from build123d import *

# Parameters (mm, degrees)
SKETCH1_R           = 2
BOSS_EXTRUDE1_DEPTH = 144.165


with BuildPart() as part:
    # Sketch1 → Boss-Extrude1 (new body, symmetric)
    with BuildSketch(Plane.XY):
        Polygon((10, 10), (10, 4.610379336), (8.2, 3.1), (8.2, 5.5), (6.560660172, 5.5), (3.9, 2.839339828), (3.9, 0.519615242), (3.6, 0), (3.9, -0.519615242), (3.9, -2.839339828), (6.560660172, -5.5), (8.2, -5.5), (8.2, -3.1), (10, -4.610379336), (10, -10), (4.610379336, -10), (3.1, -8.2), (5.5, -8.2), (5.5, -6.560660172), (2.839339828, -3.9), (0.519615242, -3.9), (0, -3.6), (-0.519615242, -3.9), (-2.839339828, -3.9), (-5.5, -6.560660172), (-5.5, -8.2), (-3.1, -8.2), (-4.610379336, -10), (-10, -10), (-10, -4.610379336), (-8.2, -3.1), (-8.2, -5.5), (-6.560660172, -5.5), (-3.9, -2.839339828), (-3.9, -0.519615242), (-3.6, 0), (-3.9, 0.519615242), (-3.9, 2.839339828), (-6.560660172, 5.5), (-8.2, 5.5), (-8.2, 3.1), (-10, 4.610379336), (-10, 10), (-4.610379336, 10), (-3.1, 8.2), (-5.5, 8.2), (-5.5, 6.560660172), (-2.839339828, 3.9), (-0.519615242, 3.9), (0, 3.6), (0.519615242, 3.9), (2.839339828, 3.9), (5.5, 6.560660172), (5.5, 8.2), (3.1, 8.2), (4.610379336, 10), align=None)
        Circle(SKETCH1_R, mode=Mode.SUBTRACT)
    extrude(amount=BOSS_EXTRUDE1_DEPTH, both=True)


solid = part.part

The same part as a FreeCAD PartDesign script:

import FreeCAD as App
import Part
import Sketcher

V = App.Vector
Q = App.Units.Quantity

doc = App.newDocument("Part")
body = doc.addObject("PartDesign::Body", "Body")

# Sketch on XY plane
sketch1 = doc.addObject("Sketcher::SketchObject", "Sketch")
body.addObject(sketch1)
sketch1.AttachmentSupport = (doc.XY_Plane, [""])
sketch1.MapMode = "FlatFace"
sketch1.addGeometry([
    Part.LineSegment(V(10, 4.610379, 0), V(10, 10, 0)),  # 0
    Part.LineSegment(V(10, 10, 0), V(4.610379, 10, 0)),  # 1
    Part.LineSegment(V(4.610379, 10, 0), V(3.1, 8.2, 0)),  # 2
    Part.LineSegment(V(3.1, 8.2, 0), V(5.5, 8.2, 0)),  # 3
    Part.LineSegment(V(5.5, 8.2, 0), V(5.5, 6.56066, 0)),  # 4
    Part.LineSegment(V(5.5, 6.56066, 0), V(2.83934, 3.9, 0)),  # 5
    Part.LineSegment(V(2.83934, 3.9, 0), V(0.519615, 3.9, 0)),  # 6
    Part.LineSegment(V(0.519615, 3.9, 0), V(0, 3.6, 0)),  # 7
    Part.LineSegment(V(0, 3.6, 0), V(-0.519615, 3.9, 0)),  # 8
    Part.LineSegment(V(-0.519615, 3.9, 0), V(-2.83934, 3.9, 0)),  # 9
    Part.LineSegment(V(-2.83934, 3.9, 0), V(-5.5, 6.56066, 0)),  # 10
    Part.LineSegment(V(-5.5, 6.56066, 0), V(-5.5, 8.2, 0)),  # 11
    Part.LineSegment(V(-5.5, 8.2, 0), V(-3.1, 8.2, 0)),  # 12
    Part.LineSegment(V(-3.1, 8.2, 0), V(-4.610379, 10, 0)),  # 13
    Part.LineSegment(V(-4.610379, 10, 0), V(-10, 10, 0)),  # 14
    Part.LineSegment(V(-10, 10, 0), V(-10, 4.610379, 0)),  # 15
    Part.LineSegment(V(-10, 4.610379, 0), V(-8.2, 3.1, 0)),  # 16
    Part.LineSegment(V(-8.2, 3.1, 0), V(-8.2, 5.5, 0)),  # 17
    Part.LineSegment(V(-8.2, 5.5, 0), V(-6.56066, 5.5, 0)),  # 18
    Part.LineSegment(V(-6.56066, 5.5, 0), V(-3.9, 2.83934, 0)),  # 19
    Part.LineSegment(V(-3.9, 2.83934, 0), V(-3.9, 0.519615, 0)),  # 20
    Part.LineSegment(V(-3.9, 0.519615, 0), V(-3.6, 0, 0)),  # 21
    Part.LineSegment(V(-3.6, 0, 0), V(-3.9, -0.519615, 0)),  # 22
    Part.LineSegment(V(-3.9, -0.519615, 0), V(-3.9, -2.83934, 0)),  # 23
    Part.LineSegment(V(-3.9, -2.83934, 0), V(-6.56066, -5.5, 0)),  # 24
    Part.LineSegment(V(-6.56066, -5.5, 0), V(-8.2, -5.5, 0)),  # 25
    Part.LineSegment(V(-8.2, -5.5, 0), V(-8.2, -3.1, 0)),  # 26
    Part.LineSegment(V(-8.2, -3.1, 0), V(-10, -4.610379, 0)),  # 27
    Part.LineSegment(V(-10, -4.610379, 0), V(-10, -10, 0)),  # 28
    Part.LineSegment(V(-10, -10, 0), V(-4.610379, -10, 0)),  # 29
    Part.LineSegment(V(-4.610379, -10, 0), V(-3.1, -8.2, 0)),  # 30
    Part.LineSegment(V(-3.1, -8.2, 0), V(-5.5, -8.2, 0)),  # 31
    Part.LineSegment(V(-5.5, -8.2, 0), V(-5.5, -6.56066, 0)),  # 32
    Part.LineSegment(V(-5.5, -6.56066, 0), V(-2.83934, -3.9, 0)),  # 33
    Part.LineSegment(V(-2.83934, -3.9, 0), V(-0.519615, -3.9, 0)),  # 34
    Part.LineSegment(V(-0.519615, -3.9, 0), V(0, -3.6, 0)),  # 35
    Part.LineSegment(V(0, -3.6, 0), V(0.519615, -3.9, 0)),  # 36
    Part.LineSegment(V(0.519615, -3.9, 0), V(2.83934, -3.9, 0)),  # 37
    Part.LineSegment(V(2.83934, -3.9, 0), V(5.5, -6.56066, 0)),  # 38
    Part.LineSegment(V(5.5, -6.56066, 0), V(5.5, -8.2, 0)),  # 39
    Part.LineSegment(V(5.5, -8.2, 0), V(3.1, -8.2, 0)),  # 40
    Part.LineSegment(V(3.1, -8.2, 0), V(4.610379, -10, 0)),  # 41
    Part.LineSegment(V(4.610379, -10, 0), V(10, -10, 0)),  # 42
    Part.LineSegment(V(10, -10, 0), V(10, -4.610379, 0)),  # 43
    Part.LineSegment(V(10, -4.610379, 0), V(8.2, -3.1, 0)),  # 44
    Part.LineSegment(V(8.2, -3.1, 0), V(8.2, -5.5, 0)),  # 45
    Part.LineSegment(V(8.2, -5.5, 0), V(6.56066, -5.5, 0)),  # 46
    Part.LineSegment(V(6.56066, -5.5, 0), V(3.9, -2.83934, 0)),  # 47
    Part.LineSegment(V(3.9, -2.83934, 0), V(3.9, -0.519615, 0)),  # 48
    Part.LineSegment(V(3.9, -0.519615, 0), V(3.6, 0, 0)),  # 49
    Part.LineSegment(V(3.6, 0, 0), V(3.9, 0.519615, 0)),  # 50
    Part.LineSegment(V(3.9, 0.519615, 0), V(3.9, 2.83934, 0)),  # 51
    Part.LineSegment(V(3.9, 2.83934, 0), V(6.56066, 5.5, 0)),  # 52
    Part.LineSegment(V(6.56066, 5.5, 0), V(8.2, 5.5, 0)),  # 53
    Part.LineSegment(V(8.2, 5.5, 0), V(8.2, 3.1, 0)),  # 54
    Part.LineSegment(V(8.2, 3.1, 0), V(10, 4.610379, 0)),  # 55
    Part.Circle(V(0, 0, 0), V(0, 0, 1), 2),  # 56
], False)
sketch1.addConstraint([
    Sketcher.Constraint("Coincident", 0, 2, 1, 1),
    Sketcher.Constraint("Coincident", 1, 2, 2, 1),
    Sketcher.Constraint("Coincident", 2, 2, 3, 1),
    Sketcher.Constraint("Coincident", 3, 2, 4, 1),
    Sketcher.Constraint("Coincident", 4, 2, 5, 1),
    Sketcher.Constraint("Coincident", 5, 2, 6, 1),
    Sketcher.Constraint("Coincident", 6, 2, 7, 1),
    Sketcher.Constraint("Coincident", 7, 2, 8, 1),
    Sketcher.Constraint("Coincident", 8, 2, 9, 1),
    Sketcher.Constraint("Coincident", 9, 2, 10, 1),
    Sketcher.Constraint("Coincident", 10, 2, 11, 1),
    Sketcher.Constraint("Coincident", 11, 2, 12, 1),
    Sketcher.Constraint("Coincident", 12, 2, 13, 1),
    Sketcher.Constraint("Coincident", 13, 2, 14, 1),
    Sketcher.Constraint("Coincident", 14, 2, 15, 1),
    Sketcher.Constraint("Coincident", 15, 2, 16, 1),
    Sketcher.Constraint("Coincident", 16, 2, 17, 1),
    Sketcher.Constraint("Coincident", 17, 2, 18, 1),
    Sketcher.Constraint("Coincident", 18, 2, 19, 1),
    Sketcher.Constraint("Coincident", 19, 2, 20, 1),
    Sketcher.Constraint("Coincident", 20, 2, 21, 1),
    Sketcher.Constraint("Coincident", 21, 2, 22, 1),
    Sketcher.Constraint("Coincident", 22, 2, 23, 1),
    Sketcher.Constraint("Coincident", 23, 2, 24, 1),
    Sketcher.Constraint("Coincident", 24, 2, 25, 1),
    Sketcher.Constraint("Coincident", 25, 2, 26, 1),
    Sketcher.Constraint("Coincident", 26, 2, 27, 1),
    Sketcher.Constraint("Coincident", 27, 2, 28, 1),
    Sketcher.Constraint("Coincident", 28, 2, 29, 1),
    Sketcher.Constraint("Coincident", 29, 2, 30, 1),
    Sketcher.Constraint("Coincident", 30, 2, 31, 1),
    Sketcher.Constraint("Coincident", 31, 2, 32, 1),
    Sketcher.Constraint("Coincident", 32, 2, 33, 1),
    Sketcher.Constraint("Coincident", 33, 2, 34, 1),
    Sketcher.Constraint("Coincident", 34, 2, 35, 1),
    Sketcher.Constraint("Coincident", 35, 2, 36, 1),
    Sketcher.Constraint("Coincident", 36, 2, 37, 1),
    Sketcher.Constraint("Coincident", 37, 2, 38, 1),
    Sketcher.Constraint("Coincident", 38, 2, 39, 1),
    Sketcher.Constraint("Coincident", 39, 2, 40, 1),
    Sketcher.Constraint("Coincident", 40, 2, 41, 1),
    Sketcher.Constraint("Coincident", 41, 2, 42, 1),
    Sketcher.Constraint("Coincident", 42, 2, 43, 1),
    Sketcher.Constraint("Coincident", 43, 2, 44, 1),
    Sketcher.Constraint("Coincident", 44, 2, 45, 1),
    Sketcher.Constraint("Coincident", 45, 2, 46, 1),
    Sketcher.Constraint("Coincident", 46, 2, 47, 1),
    Sketcher.Constraint("Coincident", 47, 2, 48, 1),
    Sketcher.Constraint("Coincident", 48, 2, 49, 1),
    Sketcher.Constraint("Coincident", 49, 2, 50, 1),
    Sketcher.Constraint("Coincident", 50, 2, 51, 1),
    Sketcher.Constraint("Coincident", 51, 2, 52, 1),
    Sketcher.Constraint("Coincident", 52, 2, 53, 1),
    Sketcher.Constraint("Coincident", 53, 2, 54, 1),
    Sketcher.Constraint("Coincident", 54, 2, 55, 1),
    Sketcher.Constraint("Coincident", 55, 2, 0, 1),
    Sketcher.Constraint("Vertical", 0),
    Sketcher.Constraint("Horizontal", 1),
    Sketcher.Constraint("Horizontal", 3),
    Sketcher.Constraint("Vertical", 4),
    Sketcher.Constraint("Horizontal", 6),
    Sketcher.Constraint("Horizontal", 9),
    Sketcher.Constraint("Vertical", 11),
    Sketcher.Constraint("Horizontal", 12),
    Sketcher.Constraint("Horizontal", 14),
    Sketcher.Constraint("Vertical", 15),
    Sketcher.Constraint("Vertical", 17),
    Sketcher.Constraint("Horizontal", 18),
    Sketcher.Constraint("Vertical", 20),
    Sketcher.Constraint("Vertical", 23),
    Sketcher.Constraint("Horizontal", 25),
    Sketcher.Constraint("Vertical", 26),
    Sketcher.Constraint("Vertical", 28),
    Sketcher.Constraint("Horizontal", 29),
    Sketcher.Constraint("Horizontal", 31),
    Sketcher.Constraint("Vertical", 32),
    Sketcher.Constraint("Horizontal", 34),
    Sketcher.Constraint("Horizontal", 37),
    Sketcher.Constraint("Vertical", 39),
    Sketcher.Constraint("Horizontal", 40),
    Sketcher.Constraint("Horizontal", 42),
    Sketcher.Constraint("Vertical", 43),
    Sketcher.Constraint("Vertical", 45),
    Sketcher.Constraint("Horizontal", 46),
    Sketcher.Constraint("Vertical", 48),
    Sketcher.Constraint("Vertical", 51),
    Sketcher.Constraint("Horizontal", 53),
    Sketcher.Constraint("Vertical", 54),
    Sketcher.Constraint("Coincident", 56, 3, -1, 1),
    Sketcher.Constraint("Symmetric", 0, 2, 28, 2, -1, 1),
    Sketcher.Constraint("Symmetric", 2, 2, 30, 2, -1, 1),
    Sketcher.Constraint("Symmetric", 4, 2, 32, 2, -1, 1),
    Sketcher.Constraint("Symmetric", 5, 2, 33, 2, -1, 1),
    Sketcher.Constraint("Symmetric", 7, 2, 35, 2, -1, 1),
    Sketcher.Constraint("Symmetric", 8, 2, 36, 2, -1, 1),
    Sketcher.Constraint("Symmetric", 10, 2, 38, 2, -1, 1),
    Sketcher.Constraint("Symmetric", 12, 2, 40, 2, -1, 1),
    Sketcher.Constraint("Symmetric", 13, 2, 41, 2, -1, 1),
    Sketcher.Constraint("Symmetric", 15, 2, 43, 2, -1, 1),
    Sketcher.Constraint("Symmetric", 16, 2, 44, 2, -1, 1),
    Sketcher.Constraint("Symmetric", 18, 2, 46, 2, -1, 1),
    Sketcher.Constraint("Symmetric", 19, 2, 47, 2, -1, 1),
    Sketcher.Constraint("Symmetric", 21, 2, 49, 2, -1, 1),
    Sketcher.Constraint("Symmetric", 22, 2, 50, 2, -1, 1),
    Sketcher.Constraint("Symmetric", 24, 2, 52, 2, -1, 1),
    Sketcher.Constraint("Symmetric", 26, 2, 54, 2, -1, 1),
    Sketcher.Constraint("Symmetric", 6, 2, 8, 2, -2),
    Sketcher.Constraint("Symmetric", 4, 2, 10, 2, -2),
    Sketcher.Constraint("Symmetric", 2, 2, 12, 2, -2),
    Sketcher.Constraint("Symmetric", 1, 2, 13, 2, -2),
    Sketcher.Constraint("Symmetric", 27, 2, 43, 2, -2),
    Sketcher.Constraint("Symmetric", 26, 2, 44, 2, -2),
    Sketcher.Constraint("Symmetric", 24, 2, 46, 2, -2),
    Sketcher.Constraint("Symmetric", 23, 2, 47, 2, -2),
    Sketcher.Constraint("PointOnObject", 7, 2, -2),
    Sketcher.Constraint("PointOnObject", 21, 2, -1),
    Sketcher.Constraint("Perpendicular", 5, 10),
    Sketcher.Constraint("Perpendicular", 2, 16),
    Sketcher.Constraint("Parallel", 10, 19),
    Sketcher.Constraint("Perpendicular", 7, 21),
    Sketcher.Constraint("Perpendicular", 8, 22),
    Sketcher.Constraint("Perpendicular", 19, 24),
    Sketcher.Constraint("Perpendicular", 16, 30),
    Sketcher.Constraint("Perpendicular", 21, 35),
    Sketcher.Constraint("Perpendicular", 33, 38),
    Sketcher.Constraint("Perpendicular", 35, 49),
    Sketcher.Constraint("Perpendicular", 47, 52),
    Sketcher.Constraint("Perpendicular", 41, 55),
    Sketcher.Constraint("Equal", 42, 0),
    Sketcher.Constraint("Equal", 53, 4),
    Sketcher.Constraint("Equal", 40, 17),
    Sketcher.Constraint("Equal", 37, 20),
    Sketcher.Constraint("Equal", 13, 16),
    Sketcher.Constraint("Equal", 10, 19),
    Sketcher.Constraint("Equal", 8, 21),
    Sketcher.Constraint("Diameter", 56, Q("4 mm")),
    Sketcher.Constraint("Angle", 2, Q("-130 deg")),
    Sketcher.Constraint("Angle", 7, Q("-150 deg")),
    Sketcher.Constraint("DistanceX", 3, 1, 3, 2, Q("2.4 mm")),
    Sketcher.Constraint("DistanceX", -1, 1, 0, 2, Q("10 mm")),
    Sketcher.Constraint("Distance", 7, Q("0.6 mm")),
    Sketcher.Constraint("DistanceX", -1, 1, 2, 2, Q("3.1 mm")),
    Sketcher.Constraint("DistanceY", -1, 1, 2, 2, Q("8.2 mm")),
    Sketcher.Constraint("DistanceY", -1, 1, 5, 2, Q("3.9 mm")),
    Sketcher.Constraint("DistanceX", 18, 1, 18, 2, Q("1.63934 mm")),
])
pad1 = doc.addObject("PartDesign::Pad", "Pad")
body.addObject(pad1)
pad1.Profile = sketch1
pad1.Length = 288.33
pad1.Midplane = True

doc.recompute()
